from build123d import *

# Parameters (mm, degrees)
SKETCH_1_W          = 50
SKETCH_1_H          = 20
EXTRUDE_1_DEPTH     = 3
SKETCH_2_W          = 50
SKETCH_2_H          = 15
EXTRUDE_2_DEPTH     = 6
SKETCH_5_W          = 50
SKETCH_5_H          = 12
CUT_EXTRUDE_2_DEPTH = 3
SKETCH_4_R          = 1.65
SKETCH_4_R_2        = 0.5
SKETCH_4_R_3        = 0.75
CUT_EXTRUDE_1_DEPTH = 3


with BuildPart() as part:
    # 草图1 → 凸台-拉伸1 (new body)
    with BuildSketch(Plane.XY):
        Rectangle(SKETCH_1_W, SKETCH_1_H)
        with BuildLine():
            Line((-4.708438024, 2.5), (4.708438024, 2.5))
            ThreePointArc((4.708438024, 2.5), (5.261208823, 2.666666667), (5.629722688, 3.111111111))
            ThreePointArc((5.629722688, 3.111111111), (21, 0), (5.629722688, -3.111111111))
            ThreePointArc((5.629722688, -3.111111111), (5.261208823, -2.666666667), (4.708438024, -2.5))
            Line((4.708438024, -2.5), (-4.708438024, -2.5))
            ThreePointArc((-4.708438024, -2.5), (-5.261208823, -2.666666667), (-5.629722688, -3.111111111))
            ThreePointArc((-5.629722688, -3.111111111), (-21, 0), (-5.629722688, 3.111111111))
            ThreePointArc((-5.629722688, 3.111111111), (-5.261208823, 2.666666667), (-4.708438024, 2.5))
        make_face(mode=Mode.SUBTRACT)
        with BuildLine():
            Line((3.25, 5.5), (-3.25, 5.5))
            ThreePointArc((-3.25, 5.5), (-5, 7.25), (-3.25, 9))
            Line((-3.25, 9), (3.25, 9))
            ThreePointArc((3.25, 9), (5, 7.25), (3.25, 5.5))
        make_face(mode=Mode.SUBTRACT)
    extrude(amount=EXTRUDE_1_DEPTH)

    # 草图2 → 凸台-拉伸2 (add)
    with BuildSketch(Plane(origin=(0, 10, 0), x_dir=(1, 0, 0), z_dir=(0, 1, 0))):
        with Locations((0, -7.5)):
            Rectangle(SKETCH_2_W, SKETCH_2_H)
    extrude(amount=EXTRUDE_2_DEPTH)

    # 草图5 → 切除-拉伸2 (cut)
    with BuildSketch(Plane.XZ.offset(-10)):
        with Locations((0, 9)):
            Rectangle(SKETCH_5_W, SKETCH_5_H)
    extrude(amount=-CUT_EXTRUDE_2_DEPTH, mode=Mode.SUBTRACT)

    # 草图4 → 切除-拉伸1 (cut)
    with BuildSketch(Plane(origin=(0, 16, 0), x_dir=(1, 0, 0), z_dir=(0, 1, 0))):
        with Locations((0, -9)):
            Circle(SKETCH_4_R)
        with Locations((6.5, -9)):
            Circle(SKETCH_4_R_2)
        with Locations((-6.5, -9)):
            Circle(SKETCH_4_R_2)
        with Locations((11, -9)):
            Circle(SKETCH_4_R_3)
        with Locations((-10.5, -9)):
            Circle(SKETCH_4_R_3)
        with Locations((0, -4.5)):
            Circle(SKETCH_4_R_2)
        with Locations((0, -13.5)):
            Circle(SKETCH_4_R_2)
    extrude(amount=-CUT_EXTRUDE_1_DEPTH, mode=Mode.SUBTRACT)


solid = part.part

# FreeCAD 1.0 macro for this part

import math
import FreeCAD as App
import Part
import Sketcher
Q = App.Units.Quantity

doc = App.newDocument("Part")
body = doc.addObject("PartDesign::Body", "Body")

# Sketch on XY plane
sketch1 = body.newObject("Sketcher::SketchObject", "Sketch")
sketch1.AttachmentSupport = (doc.getObject("XY_Plane"), [""])
sketch1.MapMode = "FlatFace"
sketch1.addGeometry([
    Part.LineSegment(App.Vector(-25, 10, 0), App.Vector(-25, -10, 0)),  # 0
    Part.LineSegment(App.Vector(-25, -10, 0), App.Vector(25, -10, 0)),  # 1
    Part.LineSegment(App.Vector(25, -10, 0), App.Vector(25, 10, 0)),  # 2
    Part.LineSegment(App.Vector(25, 10, 0), App.Vector(-25, 10, 0)),  # 3
    Part.ArcOfCircle(Part.Circle(App.Vector(-4.708438, 3.5, 0), App.Vector(0, 0, 1), 1), math.radians(-157.11462), math.radians(-90)),  # 4
    Part.LineSegment(App.Vector(-4.708438, 2.5, 0), App.Vector(4.708438, 2.5, 0)),  # 5
    Part.ArcOfCircle(Part.Circle(App.Vector(4.708438, 3.5, 0), App.Vector(0, 0, 1), 1), math.radians(-90), math.radians(-22.88538)),  # 6
    Part.ArcOfCircle(Part.Circle(App.Vector(13, 0, 0), App.Vector(0, 0, 1), 8), math.radians(-157.11462), math.radians(157.11462)),  # 7
    Part.ArcOfCircle(Part.Circle(App.Vector(4.708438, -3.5, 0), App.Vector(0, 0, 1), 1), math.radians(22.88538), math.radians(90)),  # 8
    Part.LineSegment(App.Vector(4.708438, -2.5, 0), App.Vector(-4.708438, -2.5, 0)),  # 9
    Part.ArcOfCircle(Part.Circle(App.Vector(-4.708438, -3.5, 0), App.Vector(0, 0, 1), 1), math.radians(90), math.radians(157.11462)),  # 10
    Part.ArcOfCircle(Part.Circle(App.Vector(-13, 0, 0), App.Vector(0, 0, 1), 8), math.radians(22.88538), math.radians(337.11462)),  # 11
    Part.ArcOfCircle(Part.Circle(App.Vector(3.25, 7.25, 0), App.Vector(0, 0, 1), 1.75), math.radians(-90), math.radians(90)),  # 12
    Part.LineSegment(App.Vector(3.25, 5.5, 0), App.Vector(-3.25, 5.5, 0)),  # 13
    Part.ArcOfCircle(Part.Circle(App.Vector(-3.25, 7.25, 0), App.Vector(0, 0, 1), 1.75), math.radians(90), math.radians(270)),  # 14
    Part.LineSegment(App.Vector(-3.25, 9, 0), App.Vector(3.25, 9, 0)),  # 15
], False)
sketch1.addConstraint([
    Sketcher.Constraint("Coincident", 0, 2, 1, 1),
    Sketcher.Constraint("Coincident", 1, 2, 2, 1),
    Sketcher.Constraint("Coincident", 2, 2, 3, 1),
    Sketcher.Constraint("Coincident", 3, 2, 0, 1),
    Sketcher.Constraint("Tangent", 4, 2, 5, 1),
    Sketcher.Constraint("Tangent", 5, 2, 6, 1),
    Sketcher.Constraint("Tangent", 6, 2, 7, 2),
    Sketcher.Constraint("Tangent", 7, 1, 8, 1),
    Sketcher.Constraint("Tangent", 8, 2, 9, 1),
    Sketcher.Constraint("Tangent", 9, 2, 10, 1),
    Sketcher.Constraint("Tangent", 10, 2, 11, 2),
    Sketcher.Constraint("Tangent", 11, 1, 4, 1),
    Sketcher.Constraint("Tangent", 12, 1, 13, 1),
    Sketcher.Constraint("Tangent", 13, 2, 14, 2),
    Sketcher.Constraint("Tangent", 14, 1, 15, 1),
    Sketcher.Constraint("Tangent", 15, 2, 12, 2),
    Sketcher.Constraint("Vertical", 0),
    Sketcher.Constraint("Horizontal", 1),
    Sketcher.Constraint("Vertical", 2),
    Sketcher.Constraint("Horizontal", 3),
    Sketcher.Constraint("Horizontal", 5),
    Sketcher.Constraint("Horizontal", 9),
    Sketcher.Constraint("Horizontal", 13),
    Sketcher.Constraint("Horizontal", 15),
    Sketcher.Constraint("Equal", 4, 6),
    Sketcher.Constraint("Equal", 6, 8),
    Sketcher.Constraint("Equal", 8, 10),
    Sketcher.Constraint("Equal", 7, 11),
    Sketcher.Constraint("Symmetric", 4, 3, 8, 3, -1, 1),
    Sketcher.Constraint("Symmetric", 0, 2, 2, 2, -1, 1),
    Sketcher.Constraint("Symmetric", 7, 3, 11, 3, -2),
    Sketcher.Constraint("Radius", 4, Q("1 mm")),
    Sketcher.Constraint("Radius", 7, Q("8 mm")),
    Sketcher.Constraint("DistanceX", 1, 1, 1, 2, Q("50 mm")),
    Sketcher.Constraint("DistanceY", 0, 2, 0, 1, Q("20 mm")),
    Sketcher.Constraint("Radius", 12, Q("1.75 mm")),
    Sketcher.Constraint("DistanceX", 13, 2, 13, 1, Q("6.5 mm")),
    Sketcher.Constraint("DistanceX", -1, 1, 7, 3, Q("13 mm")),
    Sketcher.Constraint("DistanceY", -1, 1, 14, 1, Q("9 mm")),
    Sketcher.Constraint("DistanceY", 8, 3, 6, 3, Q("7 mm")),
    Sketcher.Constraint("DistanceX", -1, 1, 12, 3, Q("3.25 mm")),
])
pad1 = body.newObject("PartDesign::Pad", "Pad")
pad1.Profile = sketch1
pad1.Length = 3

# Sketch on XZ plane
sketch2 = body.newObject("Sketcher::SketchObject", "Sketch001")
sketch2.AttachmentSupport = (doc.getObject("XZ_Plane"), [""])
sketch2.MapMode = "FlatFace"
sketch2.AttachmentOffset = App.Placement(App.Vector(0, 0, -10), App.Rotation())
sketch2.addGeometry([
    Part.LineSegment(App.Vector(-25, 0, 0), App.Vector(-25, 15, 0)),
    Part.LineSegment(App.Vector(-25, 15, 0), App.Vector(25, 15, 0)),
    Part.LineSegment(App.Vector(25, 15, 0), App.Vector(25, 0, 0)),
    Part.LineSegment(App.Vector(25, 0, 0), App.Vector(-25, 0, 0)),
], False)
sketch2.addConstraint([
    Sketcher.Constraint("Coincident", 0, 2, 1, 1),
    Sketcher.Constraint("Coincident", 1, 2, 2, 1),
    Sketcher.Constraint("Coincident", 2, 2, 3, 1),
    Sketcher.Constraint("Coincident", 3, 2, 0, 1),
    Sketcher.Constraint("Vertical", 0),
    Sketcher.Constraint("Horizontal", 1),
    Sketcher.Constraint("Vertical", 2),
    Sketcher.Constraint("Horizontal", 3),
    Sketcher.Constraint("Symmetric", 2, 2, 3, 2, -1, 1),
    Sketcher.Constraint("DistanceX", 1, 1, 1, 2, Q("50 mm")),
    Sketcher.Constraint("DistanceY", 0, 1, 0, 2, Q("15 mm")),
])
pad2 = body.newObject("PartDesign::Pad", "Pad001")
pad2.Profile = sketch2
pad2.Length = 6
pad2.Reversed = True

# Sketch on XZ plane
sketch3 = body.newObject("Sketcher::SketchObject", "Sketch002")
sketch3.AttachmentSupport = (doc.getObject("XZ_Plane"), [""])
sketch3.MapMode = "FlatFace"
sketch3.AttachmentOffset = App.Placement(App.Vector(0, 0, -10), App.Rotation())
sketch3.addGeometry([
    Part.LineSegment(App.Vector(-25, 15, 0), App.Vector(-25, 3, 0)),
    Part.LineSegment(App.Vector(-25, 3, 0), App.Vector(25, 3, 0)),
    Part.LineSegment(App.Vector(25, 3, 0), App.Vector(25, 15, 0)),
    Part.LineSegment(App.Vector(25, 15, 0), App.Vector(-25, 15, 0)),
], False)
sketch3.addConstraint([
    Sketcher.Constraint("Coincident", 0, 2, 1, 1),
    Sketcher.Constraint("Coincident", 1, 2, 2, 1),
    Sketcher.Constraint("Coincident", 2, 2, 3, 1),
    Sketcher.Constraint("Coincident", 3, 2, 0, 1),
    Sketcher.Constraint("Vertical", 0),
    Sketcher.Constraint("Horizontal", 1),
    Sketcher.Constraint("Vertical", 2),
    Sketcher.Constraint("Horizontal", 3),
    Sketcher.Constraint("DistanceX", 1, 1, 1, 2, Q("50 mm")),
    Sketcher.Constraint("DistanceY", 0, 2, 0, 1, Q("12 mm")),
    Sketcher.Constraint("DistanceX", 0, 2, -1, 1, Q("25 mm")),
    Sketcher.Constraint("DistanceY", -1, 1, 0, 2, Q("3 mm")),
])
pocket1 = body.newObject("PartDesign::Pocket", "Pocket")
pocket1.Profile = sketch3
pocket1.Length = 3

# Sketch on XZ plane
sketch4 = body.newObject("Sketcher::SketchObject", "Sketch003")
sketch4.AttachmentSupport = (doc.getObject("XZ_Plane"), [""])
sketch4.MapMode = "FlatFace"
sketch4.AttachmentOffset = App.Placement(App.Vector(0, 0, -16), App.Rotation())
sketch4.addGeometry([
    Part.Circle(App.Vector(0, 9, 0), App.Vector(0, 0, 1), 1.65),  # 0
    Part.Circle(App.Vector(6.5, 9, 0), App.Vector(0, 0, 1), 0.5),  # 1
    Part.Circle(App.Vector(-6.5, 9, 0), App.Vector(0, 0, 1), 0.5),  # 2
    Part.Circle(App.Vector(11, 9, 0), App.Vector(0, 0, 1), 0.75),  # 3
    Part.Circle(App.Vector(-10.5, 9, 0), App.Vector(0, 0, 1), 0.75),  # 4
    Part.Circle(App.Vector(0, 4.5, 0), App.Vector(0, 0, 1), 0.5),  # 5
    Part.Circle(App.Vector(0, 13.5, 0), App.Vector(0, 0, 1), 0.5),  # 6
], False)
sketch4.addConstraint([
    Sketcher.Constraint("Equal", 1, 2),
    Sketcher.Constraint("Equal", 3, 4),
    Sketcher.Constraint("Equal", 2, 5),
    Sketcher.Constraint("Equal", 5, 6),
    Sketcher.Constraint("Symmetric", 1, 3, 2, 3, -2),
    Sketcher.Constraint("PointOnObject", 0, 3, -2),
    Sketcher.Constraint("PointOnObject", 5, 3, -2),
    Sketcher.Constraint("PointOnObject", 6, 3, -2),
    Sketcher.Constraint("Horizontal", 0, 3, 1, 3),
    Sketcher.Constraint("Horizontal", 2, 3, 3, 3),
    Sketcher.Constraint("Horizontal", 3, 3, 4, 3),
    Sketcher.Constraint("Diameter", 1, Q("1 mm")),
    Sketcher.Constraint("Diameter", 0, Q("3.3 mm")),
    Sketcher.Constraint("Diameter", 3, Q("1.5 mm")),
    Sketcher.Constraint("DistanceY", -1, 1, 0, 3, Q("9 mm")),
    Sketcher.Constraint("DistanceX", -1, 1, 3, 3, Q("11 mm")),
    Sketcher.Constraint("DistanceX", 2, 3, 1, 3, Q("13 mm")),
    Sketcher.Constraint("DistanceX", 4, 3, 2, 3, Q("4 mm")),
    Sketcher.Constraint("DistanceY", 5, 3, 6, 3, Q("9 mm")),
    Sketcher.Constraint("DistanceY", -1, 1, 5, 3, Q("4.5 mm")),
])
pocket2 = body.newObject("PartDesign::Pocket", "Pocket001")
pocket2.Profile = sketch4
pocket2.Length = 3
pocket2.Reversed = True

doc.recompute()
